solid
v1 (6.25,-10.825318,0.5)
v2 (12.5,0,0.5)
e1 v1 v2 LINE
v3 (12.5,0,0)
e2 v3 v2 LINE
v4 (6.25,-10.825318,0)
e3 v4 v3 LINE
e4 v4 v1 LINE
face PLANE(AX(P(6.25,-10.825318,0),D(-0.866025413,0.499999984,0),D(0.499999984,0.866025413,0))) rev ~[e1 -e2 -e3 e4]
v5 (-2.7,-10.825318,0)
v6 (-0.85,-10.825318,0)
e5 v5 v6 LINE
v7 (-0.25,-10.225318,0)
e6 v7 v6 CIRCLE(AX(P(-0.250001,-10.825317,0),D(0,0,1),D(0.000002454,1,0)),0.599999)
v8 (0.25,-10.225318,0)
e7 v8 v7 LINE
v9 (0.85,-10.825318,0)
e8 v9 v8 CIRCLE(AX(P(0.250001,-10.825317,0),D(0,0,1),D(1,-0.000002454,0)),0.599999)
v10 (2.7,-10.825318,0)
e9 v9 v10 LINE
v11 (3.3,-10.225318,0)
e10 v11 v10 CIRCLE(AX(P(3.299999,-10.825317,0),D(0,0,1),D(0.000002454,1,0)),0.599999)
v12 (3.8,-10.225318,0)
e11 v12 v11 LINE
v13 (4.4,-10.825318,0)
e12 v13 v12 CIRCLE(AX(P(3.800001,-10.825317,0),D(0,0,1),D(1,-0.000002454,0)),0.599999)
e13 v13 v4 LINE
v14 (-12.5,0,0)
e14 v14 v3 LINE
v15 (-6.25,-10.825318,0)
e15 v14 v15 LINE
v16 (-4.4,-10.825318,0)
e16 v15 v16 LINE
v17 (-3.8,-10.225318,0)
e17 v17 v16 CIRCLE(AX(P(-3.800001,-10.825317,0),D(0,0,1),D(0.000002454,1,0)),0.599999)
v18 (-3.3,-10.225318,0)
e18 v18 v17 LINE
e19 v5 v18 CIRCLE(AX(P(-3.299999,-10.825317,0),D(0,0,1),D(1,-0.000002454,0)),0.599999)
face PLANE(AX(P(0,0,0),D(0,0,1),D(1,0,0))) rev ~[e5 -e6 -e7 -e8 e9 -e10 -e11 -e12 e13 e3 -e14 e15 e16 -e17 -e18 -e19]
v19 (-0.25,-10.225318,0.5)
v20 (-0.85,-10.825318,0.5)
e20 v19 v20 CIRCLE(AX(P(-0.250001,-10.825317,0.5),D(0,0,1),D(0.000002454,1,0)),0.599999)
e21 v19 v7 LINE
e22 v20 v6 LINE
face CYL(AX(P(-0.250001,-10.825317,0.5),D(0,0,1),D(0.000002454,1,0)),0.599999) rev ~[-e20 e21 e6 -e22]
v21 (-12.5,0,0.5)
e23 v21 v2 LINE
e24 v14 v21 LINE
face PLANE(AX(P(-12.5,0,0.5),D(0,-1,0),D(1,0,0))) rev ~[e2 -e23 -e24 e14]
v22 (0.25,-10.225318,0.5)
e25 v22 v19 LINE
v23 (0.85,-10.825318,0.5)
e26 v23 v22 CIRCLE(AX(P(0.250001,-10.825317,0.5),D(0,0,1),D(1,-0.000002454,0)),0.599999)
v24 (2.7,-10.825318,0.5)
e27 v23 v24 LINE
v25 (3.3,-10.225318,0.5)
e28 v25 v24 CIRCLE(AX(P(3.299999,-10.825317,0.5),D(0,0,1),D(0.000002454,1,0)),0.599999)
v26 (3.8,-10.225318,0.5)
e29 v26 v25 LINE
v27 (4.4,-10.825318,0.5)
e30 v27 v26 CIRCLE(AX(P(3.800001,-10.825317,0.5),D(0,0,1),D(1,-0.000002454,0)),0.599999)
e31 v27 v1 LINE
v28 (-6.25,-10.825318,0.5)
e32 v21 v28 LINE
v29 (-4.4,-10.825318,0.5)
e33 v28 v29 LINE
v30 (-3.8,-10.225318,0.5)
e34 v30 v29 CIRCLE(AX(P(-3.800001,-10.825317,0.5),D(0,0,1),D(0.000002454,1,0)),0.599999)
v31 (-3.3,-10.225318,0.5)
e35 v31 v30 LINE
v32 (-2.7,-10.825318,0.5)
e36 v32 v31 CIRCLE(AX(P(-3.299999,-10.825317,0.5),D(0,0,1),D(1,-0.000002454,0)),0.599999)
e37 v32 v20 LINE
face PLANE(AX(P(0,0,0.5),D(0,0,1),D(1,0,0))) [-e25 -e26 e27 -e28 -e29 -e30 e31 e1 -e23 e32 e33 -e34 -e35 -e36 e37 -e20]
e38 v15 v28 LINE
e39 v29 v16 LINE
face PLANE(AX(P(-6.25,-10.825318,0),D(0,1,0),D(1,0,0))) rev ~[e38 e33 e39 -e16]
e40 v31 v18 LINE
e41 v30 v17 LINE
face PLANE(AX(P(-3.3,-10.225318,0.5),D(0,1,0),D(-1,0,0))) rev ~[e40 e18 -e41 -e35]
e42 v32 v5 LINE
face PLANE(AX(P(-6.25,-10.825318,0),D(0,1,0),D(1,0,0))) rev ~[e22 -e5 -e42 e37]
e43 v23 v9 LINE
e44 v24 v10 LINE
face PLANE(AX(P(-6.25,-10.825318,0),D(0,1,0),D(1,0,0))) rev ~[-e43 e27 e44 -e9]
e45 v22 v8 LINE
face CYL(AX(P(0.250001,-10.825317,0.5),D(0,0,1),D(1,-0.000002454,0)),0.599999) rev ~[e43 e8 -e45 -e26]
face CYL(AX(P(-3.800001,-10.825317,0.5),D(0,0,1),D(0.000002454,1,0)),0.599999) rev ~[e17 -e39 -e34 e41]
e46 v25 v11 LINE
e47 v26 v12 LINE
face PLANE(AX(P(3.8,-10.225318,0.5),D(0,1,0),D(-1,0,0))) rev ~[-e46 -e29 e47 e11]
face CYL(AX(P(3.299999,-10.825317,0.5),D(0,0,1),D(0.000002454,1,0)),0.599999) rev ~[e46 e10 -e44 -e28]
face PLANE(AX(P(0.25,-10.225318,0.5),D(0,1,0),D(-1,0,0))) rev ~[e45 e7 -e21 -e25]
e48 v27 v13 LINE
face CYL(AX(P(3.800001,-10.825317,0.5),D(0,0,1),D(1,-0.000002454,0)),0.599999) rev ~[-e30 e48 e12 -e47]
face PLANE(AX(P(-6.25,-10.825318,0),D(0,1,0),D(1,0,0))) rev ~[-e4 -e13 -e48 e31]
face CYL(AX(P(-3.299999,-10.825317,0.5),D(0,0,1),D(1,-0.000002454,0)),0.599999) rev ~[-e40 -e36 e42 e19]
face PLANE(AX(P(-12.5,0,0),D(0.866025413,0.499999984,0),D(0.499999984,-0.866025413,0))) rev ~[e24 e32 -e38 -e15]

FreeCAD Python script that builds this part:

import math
import FreeCAD as App
import Part
import Sketcher
from FreeCAD import Vector
Q = App.Units.Quantity

doc = App.newDocument("Part")
body = doc.addObject("PartDesign::Body", "Body")

# Sketch on XY plane
sketch1 = doc.addObject("Sketcher::SketchObject", "Sketch")
body.addObject(sketch1)
sketch1.AttachmentSupport = (doc.XY_Plane, [""])
sketch1.MapMode = "FlatFace"
sketch1.addGeometry(Part.LineSegment(Vector(6.25, -10.825318, 0), Vector(12.5, 0, 0)), False)
sketch1.addGeometry(Part.LineSegment(Vector(12.5, 0, 0), Vector(6.25, 10.825318, 0)), False)
sketch1.addGeometry(Part.LineSegment(Vector(6.25, 10.825318, 0), Vector(-6.25, 10.825318, 0)), False)
sketch1.addGeometry(Part.LineSegment(Vector(-6.25, 10.825318, 0), Vector(-12.5, 0, 0)), False)
sketch1.addGeometry(Part.LineSegment(Vector(-12.5, 0, 0), Vector(-6.25, -10.825318, 0)), False)
sketch1.addGeometry(Part.LineSegment(Vector(-6.25, -10.825318, 0), Vector(6.25, -10.825318, 0)), False)
sketch1.addConstraint(Sketcher.Constraint("Coincident", 0, 2, 1, 1))
sketch1.addConstraint(Sketcher.Constraint("Coincident", 1, 2, 2, 1))
sketch1.addConstraint(Sketcher.Constraint("Coincident", 2, 2, 3, 1))
sketch1.addConstraint(Sketcher.Constraint("Coincident", 3, 2, 4, 1))
sketch1.addConstraint(Sketcher.Constraint("Coincident", 4, 2, 5, 1))
sketch1.addConstraint(Sketcher.Constraint("Coincident", 5, 2, 0, 1))
sketch1.addConstraint(Sketcher.Constraint("Horizontal", 2))
sketch1.addConstraint(Sketcher.Constraint("Horizontal", 5))
sketch1.addConstraint(Sketcher.Constraint("Symmetric", 0, 2, 3, 2, -1, 1))
sketch1.addConstraint(Sketcher.Constraint("Symmetric", 1, 2, 4, 2, -1, 1))
sketch1.addConstraint(Sketcher.Constraint("PointOnObject", 0, 2, -1))
sketch1.addConstraint(Sketcher.Constraint("Parallel", 0, 3))
sketch1.addConstraint(Sketcher.Constraint("Vertical", 2, 2, 4, 2))
sketch1.addConstraint(Sketcher.Constraint("Angle", 0, Q("60.000001 deg")))
sketch1.addConstraint(Sketcher.Constraint("DistanceX", 2, 2, 2, 1, Q("12.5 mm")))
sketch1.addConstraint(Sketcher.Constraint("DistanceX", 3, 2, 0, 2, Q("25 mm")))
pad1 = doc.addObject("PartDesign::Pad", "Pad")
body.addObject(pad1)
pad1.Profile = sketch1
pad1.Length = 0.5

# Sketch on XY plane
sketch2 = doc.addObject("Sketcher::SketchObject", "Sketch001")
body.addObject(sketch2)
sketch2.AttachmentSupport = (doc.XY_Plane, [""])
sketch2.MapMode = "FlatFace"
sketch2.AttachmentOffset = App.Placement(Vector(0, 0, 0.5), App.Rotation())
sketch2.addGeometry(Part.ArcOfCircle(Part.Circle(Vector(3.800001, -10.825317, 0), Vector(0, 0, 1), 0.599999), math.radians(-0.000141), math.radians(90.000141)), False)
sketch2.addGeometry(Part.LineSegment(Vector(3.8, -10.225318, 0), Vector(3.3, -10.225318, 0)), False)
sketch2.addGeometry(Part.ArcOfCircle(Part.Circle(Vector(3.299999, -10.825317, 0), Vector(0, 0, 1), 0.599999), math.radians(89.999859), math.radians(180.000141)), False)
sketch2.addGeometry(Part.LineSegment(Vector(2.7, -10.825318, 0), Vector(4.4, -10.825318, 0)), False)
sketch2.addGeometry(Part.ArcOfCircle(Part.Circle(Vector(0.250001, -10.825317, 0), Vector(0, 0, 1), 0.599999), math.radians(-0.000141), math.radians(90.000141)), False)
sketch2.addGeometry(Part.LineSegment(Vector(0.25, -10.225318, 0), Vector(-0.25, -10.225318, 0)), False)
sketch2.addGeometry(Part.ArcOfCircle(Part.Circle(Vector(-0.250001, -10.825317, 0), Vector(0, 0, 1), 0.599999), math.radians(89.999859), math.radians(180.000141)), False)
sketch2.addGeometry(Part.LineSegment(Vector(-0.85, -10.825318, 0), Vector(0.85, -10.825318, 0)), False)
sketch2.addGeometry(Part.ArcOfCircle(Part.Circle(Vector(-3.299999, -10.825317, 0), Vector(0, 0, 1), 0.599999), math.radians(-0.000141), math.radians(90.000141)), False)
sketch2.addGeometry(Part.LineSegment(Vector(-3.3, -10.225318, 0), Vector(-3.8, -10.225318, 0)), False)
sketch2.addGeometry(Part.ArcOfCircle(Part.Circle(Vector(-3.800001, -10.825317, 0), Vector(0, 0, 1), 0.599999), math.radians(89.999859), math.radians(180.000141)), False)
sketch2.addGeometry(Part.LineSegment(Vector(-4.4, -10.825318, 0), Vector(-2.7, -10.825318, 0)), False)
sketch2.addConstraint(Sketcher.Constraint("Coincident", 0, 2, 1, 1))
sketch2.addConstraint(Sketcher.Constraint("Coincident", 1, 2, 2, 1))
sketch2.addConstraint(Sketcher.Constraint("Coincident", 2, 2, 3, 1))
sketch2.addConstraint(Sketcher.Constraint("Coincident", 3, 2, 0, 1))
sketch2.addConstraint(Sketcher.Constraint("Coincident", 4, 2, 5, 1))
sketch2.addConstraint(Sketcher.Constraint("Coincident", 5, 2, 6, 1))
sketch2.addConstraint(Sketcher.Constraint("Coincident", 6, 2, 7, 1))
sketch2.addConstraint(Sketcher.Constraint("Coincident", 7, 2, 4, 1))
sketch2.addConstraint(Sketcher.Constraint("Coincident", 8, 2, 9, 1))
sketch2.addConstraint(Sketcher.Constraint("Coincident", 9, 2, 10, 1))
sketch2.addConstraint(Sketcher.Constraint("Coincident", 10, 2, 11, 1))
sketch2.addConstraint(Sketcher.Constraint("Coincident", 11, 2, 8, 1))
sketch2.addConstraint(Sketcher.Constraint("Horizontal", 1))
sketch2.addConstraint(Sketcher.Constraint("Horizontal", 3))
sketch2.addConstraint(Sketcher.Constraint("Horizontal", 5))
sketch2.addConstraint(Sketcher.Constraint("Horizontal", 7))
sketch2.addConstraint(Sketcher.Constraint("Horizontal", 9))
sketch2.addConstraint(Sketcher.Constraint("Horizontal", 11))
sketch2.addConstraint(Sketcher.Constraint("Equal", 0, 2))
sketch2.addConstraint(Sketcher.Constraint("Equal", 2, 4))
sketch2.addConstraint(Sketcher.Constraint("Equal", 4, 6))
sketch2.addConstraint(Sketcher.Constraint("Equal", 6, 8))
sketch2.addConstraint(Sketcher.Constraint("Equal", 8, 10))
sketch2.addConstraint(Sketcher.Constraint("Symmetric", 2, 3, 8, 3, -2))
sketch2.addConstraint(Sketcher.Constraint("Symmetric", 3, 2, 10, 2, -2))
sketch2.addConstraint(Sketcher.Constraint("Horizontal", 2, 3, 4, 3))
sketch2.addConstraint(Sketcher.Constraint("Horizontal", 10, 3, 2, 2))
sketch2.addConstraint(Sketcher.Constraint("Horizontal", 3, 2, 6, 2))
sketch2.addConstraint(Sketcher.Constraint("Vertical", 2, 3, 1, 2))
sketch2.addConstraint(Sketcher.Constraint("Vertical", 6, 3, 5, 2))
sketch2.addConstraint(Sketcher.Constraint("Vertical", 10, 3, 9, 2))
sketch2.addConstraint(Sketcher.Constraint("Equal", 1, 5))
sketch2.addConstraint(Sketcher.Constraint("Equal", 3, 7))
sketch2.addConstraint(Sketcher.Constraint("Equal", 5, 9))
sketch2.addConstraint(Sketcher.Constraint("Radius", 0, Q("0.599999 mm")))
sketch2.addConstraint(Sketcher.Constraint("DistanceX", 1, 2, 1, 1, Q("0.5 mm")))
sketch2.addConstraint(Sketcher.Constraint("DistanceX", 3, 1, 3, 2, Q("1.7 mm")))
sketch2.addConstraint(Sketcher.Constraint("DistanceX", -1, 1, 0, 3, Q("3.800001 mm")))
sketch2.addConstraint(Sketcher.Constraint("DistanceX", -1, 1, 4, 3, Q("0.250001 mm")))
sketch2.addConstraint(Sketcher.Constraint("DistanceY", 0, 2, -1, 1, Q("10.225318 mm")))
pocket1 = doc.addObject("PartDesign::Pocket", "Pocket")
body.addObject(pocket1)
pocket1.Profile = sketch2
pocket1.Type = "ThroughAll"

# Sketch on XY plane
sketch3 = doc.addObject("Sketcher::SketchObject", "Sketch002")
body.addObject(sketch3)
sketch3.AttachmentSupport = (doc.XY_Plane, [""])
sketch3.MapMode = "FlatFace"
sketch3.AttachmentOffset = App.Placement(Vector(0, 0, 0.5), App.Rotation())
sketch3.addGeometry(Part.LineSegment(Vector(-6.25, 10.825318, 0), Vector(-12.5, 0, 0)), False)
sketch3.addGeometry(Part.LineSegment(Vector(-12.5, 0, 0), Vector(12.5, 0, 0)), False)
sketch3.addGeometry(Part.LineSegment(Vector(12.5, 0, 0), Vector(6.25, 10.825318, 0)), False)
sketch3.addGeometry(Part.LineSegment(Vector(6.25, 10.825318, 0), Vector(-6.25, 10.825318, 0)), False)
sketch3.addConstraint(Sketcher.Constraint("Coincident", 0, 2, 1, 1))
sketch3.addConstraint(Sketcher.Constraint("Coincident", 1, 2, 2, 1))
sketch3.addConstraint(Sketcher.Constraint("Coincident", 2, 2, 3, 1))
sketch3.addConstraint(Sketcher.Constraint("Coincident", 3, 2, 0, 1))
sketch3.addConstraint(Sketcher.Constraint("Horizontal", 1))
sketch3.addConstraint(Sketcher.Constraint("Horizontal", 3))
sketch3.addConstraint(Sketcher.Constraint("Symmetric", 0, 2, 1, 2, -1, 1))
sketch3.addConstraint(Sketcher.Constraint("Equal", 0, 2))
sketch3.addConstraint(Sketcher.Constraint("DistanceX", 1, 1, 1, 2, Q("25 mm")))
sketch3.addConstraint(Sketcher.Constraint("Angle", 0, Q("-119.999999 deg")))
sketch3.addConstraint(Sketcher.Constraint("DistanceX", 3, 2, 3, 1, Q("12.5 mm")))
pocket2 = doc.addObject("PartDesign::Pocket", "Pocket001")
body.addObject(pocket2)
pocket2.Profile = sketch3
pocket2.Type = "ThroughAll"

doc.recompute()
